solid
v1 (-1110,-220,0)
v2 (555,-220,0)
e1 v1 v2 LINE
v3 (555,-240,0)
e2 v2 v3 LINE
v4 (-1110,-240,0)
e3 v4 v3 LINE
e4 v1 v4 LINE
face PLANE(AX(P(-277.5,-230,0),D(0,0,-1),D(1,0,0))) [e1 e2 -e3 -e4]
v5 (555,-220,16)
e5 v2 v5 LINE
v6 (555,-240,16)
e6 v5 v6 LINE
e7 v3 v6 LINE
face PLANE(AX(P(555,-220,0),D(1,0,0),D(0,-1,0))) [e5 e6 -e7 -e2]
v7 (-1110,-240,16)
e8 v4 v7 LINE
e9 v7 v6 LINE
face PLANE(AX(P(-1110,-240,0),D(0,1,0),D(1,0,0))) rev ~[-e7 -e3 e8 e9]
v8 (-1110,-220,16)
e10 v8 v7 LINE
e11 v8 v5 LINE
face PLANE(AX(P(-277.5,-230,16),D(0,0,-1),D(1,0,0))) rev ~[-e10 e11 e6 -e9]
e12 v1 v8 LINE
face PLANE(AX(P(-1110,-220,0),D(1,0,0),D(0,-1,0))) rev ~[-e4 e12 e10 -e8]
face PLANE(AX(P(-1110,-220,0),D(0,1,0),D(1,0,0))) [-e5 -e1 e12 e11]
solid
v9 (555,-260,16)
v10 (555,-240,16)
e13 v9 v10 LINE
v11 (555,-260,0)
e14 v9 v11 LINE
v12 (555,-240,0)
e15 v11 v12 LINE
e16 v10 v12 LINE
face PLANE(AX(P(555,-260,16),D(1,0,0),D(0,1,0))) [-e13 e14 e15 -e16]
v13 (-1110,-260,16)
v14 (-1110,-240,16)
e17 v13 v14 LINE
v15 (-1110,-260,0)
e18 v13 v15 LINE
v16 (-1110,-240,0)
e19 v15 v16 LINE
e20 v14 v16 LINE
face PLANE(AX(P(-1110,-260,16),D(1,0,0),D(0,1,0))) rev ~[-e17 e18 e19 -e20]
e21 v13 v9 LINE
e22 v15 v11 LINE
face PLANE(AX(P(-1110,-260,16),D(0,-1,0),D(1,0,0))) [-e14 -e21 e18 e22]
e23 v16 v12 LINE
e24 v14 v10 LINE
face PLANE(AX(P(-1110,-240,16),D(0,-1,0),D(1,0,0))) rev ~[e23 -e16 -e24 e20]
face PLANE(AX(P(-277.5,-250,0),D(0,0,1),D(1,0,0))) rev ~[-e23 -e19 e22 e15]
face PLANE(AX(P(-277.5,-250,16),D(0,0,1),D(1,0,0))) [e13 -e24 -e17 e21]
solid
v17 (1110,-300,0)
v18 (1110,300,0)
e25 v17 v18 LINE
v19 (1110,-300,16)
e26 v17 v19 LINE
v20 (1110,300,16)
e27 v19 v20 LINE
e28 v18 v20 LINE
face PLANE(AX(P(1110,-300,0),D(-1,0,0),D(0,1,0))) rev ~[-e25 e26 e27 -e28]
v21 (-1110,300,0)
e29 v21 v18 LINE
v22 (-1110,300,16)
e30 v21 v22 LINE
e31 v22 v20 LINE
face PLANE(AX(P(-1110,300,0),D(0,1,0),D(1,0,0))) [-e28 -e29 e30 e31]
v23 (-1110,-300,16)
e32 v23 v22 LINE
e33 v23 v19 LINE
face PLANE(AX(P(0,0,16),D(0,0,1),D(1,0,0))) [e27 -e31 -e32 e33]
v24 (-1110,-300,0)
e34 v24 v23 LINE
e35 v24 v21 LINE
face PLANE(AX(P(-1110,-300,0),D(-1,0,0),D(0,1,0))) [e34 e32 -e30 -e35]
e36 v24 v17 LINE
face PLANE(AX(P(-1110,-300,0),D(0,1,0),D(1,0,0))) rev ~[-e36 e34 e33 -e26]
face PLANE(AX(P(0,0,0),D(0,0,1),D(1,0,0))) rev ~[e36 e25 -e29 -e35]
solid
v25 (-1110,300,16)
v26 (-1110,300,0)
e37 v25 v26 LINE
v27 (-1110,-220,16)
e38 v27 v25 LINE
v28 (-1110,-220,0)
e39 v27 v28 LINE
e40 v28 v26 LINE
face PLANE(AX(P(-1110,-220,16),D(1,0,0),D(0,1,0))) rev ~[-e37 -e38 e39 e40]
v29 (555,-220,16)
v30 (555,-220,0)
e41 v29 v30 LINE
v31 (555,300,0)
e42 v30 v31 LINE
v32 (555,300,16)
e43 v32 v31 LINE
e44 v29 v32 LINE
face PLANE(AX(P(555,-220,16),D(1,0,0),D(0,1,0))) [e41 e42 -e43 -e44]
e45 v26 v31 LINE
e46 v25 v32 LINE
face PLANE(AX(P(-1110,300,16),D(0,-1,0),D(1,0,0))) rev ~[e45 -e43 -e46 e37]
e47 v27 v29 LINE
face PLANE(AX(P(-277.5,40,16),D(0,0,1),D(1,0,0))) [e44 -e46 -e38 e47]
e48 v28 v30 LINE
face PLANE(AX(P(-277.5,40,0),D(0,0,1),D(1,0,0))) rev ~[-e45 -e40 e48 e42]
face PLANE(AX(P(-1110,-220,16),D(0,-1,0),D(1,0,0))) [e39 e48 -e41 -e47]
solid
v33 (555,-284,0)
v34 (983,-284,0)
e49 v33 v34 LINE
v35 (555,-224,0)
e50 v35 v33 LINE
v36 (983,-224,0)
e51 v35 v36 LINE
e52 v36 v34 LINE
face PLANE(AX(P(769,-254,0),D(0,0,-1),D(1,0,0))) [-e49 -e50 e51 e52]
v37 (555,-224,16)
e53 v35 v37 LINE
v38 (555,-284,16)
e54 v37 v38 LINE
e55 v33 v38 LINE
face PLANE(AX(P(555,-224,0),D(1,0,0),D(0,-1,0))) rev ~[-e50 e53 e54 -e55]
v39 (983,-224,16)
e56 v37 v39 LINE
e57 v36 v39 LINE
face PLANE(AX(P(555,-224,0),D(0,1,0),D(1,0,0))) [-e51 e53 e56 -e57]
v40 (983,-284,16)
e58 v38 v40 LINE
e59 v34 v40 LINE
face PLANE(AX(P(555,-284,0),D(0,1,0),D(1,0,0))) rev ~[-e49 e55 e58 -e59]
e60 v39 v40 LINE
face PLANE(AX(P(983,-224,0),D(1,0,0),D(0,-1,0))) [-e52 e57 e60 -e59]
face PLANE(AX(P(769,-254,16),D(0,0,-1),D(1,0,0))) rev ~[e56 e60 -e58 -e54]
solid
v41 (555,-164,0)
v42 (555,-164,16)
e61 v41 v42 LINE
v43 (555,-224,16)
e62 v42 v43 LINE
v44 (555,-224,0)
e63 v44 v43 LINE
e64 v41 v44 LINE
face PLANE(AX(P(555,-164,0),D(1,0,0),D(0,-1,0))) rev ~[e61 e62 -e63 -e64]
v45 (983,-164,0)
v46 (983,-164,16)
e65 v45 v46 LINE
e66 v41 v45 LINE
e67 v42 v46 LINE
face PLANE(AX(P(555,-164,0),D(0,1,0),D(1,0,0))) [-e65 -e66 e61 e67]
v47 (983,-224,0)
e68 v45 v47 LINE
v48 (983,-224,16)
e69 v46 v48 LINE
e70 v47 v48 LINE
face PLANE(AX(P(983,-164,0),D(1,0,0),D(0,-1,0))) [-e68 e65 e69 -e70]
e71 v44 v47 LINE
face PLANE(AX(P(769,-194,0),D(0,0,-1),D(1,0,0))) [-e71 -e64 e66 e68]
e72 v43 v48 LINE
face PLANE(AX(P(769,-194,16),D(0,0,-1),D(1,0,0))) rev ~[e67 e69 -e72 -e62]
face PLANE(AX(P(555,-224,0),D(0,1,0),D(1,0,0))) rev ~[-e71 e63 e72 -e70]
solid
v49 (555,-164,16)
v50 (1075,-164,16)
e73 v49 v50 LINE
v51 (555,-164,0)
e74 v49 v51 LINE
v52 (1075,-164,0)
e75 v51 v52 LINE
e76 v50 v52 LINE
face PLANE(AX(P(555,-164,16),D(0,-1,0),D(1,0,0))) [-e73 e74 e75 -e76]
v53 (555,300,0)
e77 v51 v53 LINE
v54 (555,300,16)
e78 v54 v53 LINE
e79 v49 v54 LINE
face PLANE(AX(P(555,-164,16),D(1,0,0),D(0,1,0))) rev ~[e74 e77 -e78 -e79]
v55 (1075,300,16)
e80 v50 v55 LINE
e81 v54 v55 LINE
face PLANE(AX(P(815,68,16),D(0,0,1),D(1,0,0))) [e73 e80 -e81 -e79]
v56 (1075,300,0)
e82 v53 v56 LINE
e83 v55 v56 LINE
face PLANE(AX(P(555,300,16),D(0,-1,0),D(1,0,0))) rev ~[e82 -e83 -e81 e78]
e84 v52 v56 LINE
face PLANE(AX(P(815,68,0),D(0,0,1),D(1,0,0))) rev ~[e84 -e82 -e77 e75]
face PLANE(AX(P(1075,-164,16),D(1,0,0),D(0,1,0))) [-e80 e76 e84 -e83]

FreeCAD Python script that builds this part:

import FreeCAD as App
import Part
import Sketcher

V = App.Vector

doc = App.newDocument("Part")
body = doc.addObject("PartDesign::Body", "Body")

# Sketch on XY plane
sketch1 = body.newObject("Sketcher::SketchObject", "Sketch")
sketch1.AttachmentSupport = (doc.getObject("XY_Plane"), [""])
sketch1.MapMode = "FlatFace"
sketch1.addGeometry([
    Part.LineSegment(V(-1110, 300, 0), V(-1110, -300, 0)),
    Part.LineSegment(V(-1110, -300, 0), V(1110, -300, 0)),
    Part.LineSegment(V(1110, -300, 0), V(1110, 300, 0)),
    Part.LineSegment(V(1110, 300, 0), V(-1110, 300, 0)),
], False)
sketch1.addConstraint([
    Sketcher.Constraint("Coincident", 0, 2, 1, 1),
    Sketcher.Constraint("Coincident", 1, 2, 2, 1),
    Sketcher.Constraint("Coincident", 2, 2, 3, 1),
    Sketcher.Constraint("Coincident", 3, 2, 0, 1),
    Sketcher.Constraint("Vertical", 0),
    Sketcher.Constraint("Horizontal", 1),
    Sketcher.Constraint("Vertical", 2),
    Sketcher.Constraint("Horizontal", 3),
    Sketcher.Constraint("Symmetric", 0, 2, 2, 2, -1, 1),
    Sketcher.Constraint("DistanceX", 1, 1, 1, 2, 2220.0),
    Sketcher.Constraint("DistanceY", 0, 2, 0, 1, 600.0),
])
pad1 = body.newObject("PartDesign::Pad", "Pad")
pad1.Profile = sketch1
pad1.Length = 16
body2 = doc.addObject("PartDesign::Body", "Body001")

# Sketch on XY plane
sketch2 = body2.newObject("Sketcher::SketchObject", "Sketch001")
sketch2.AttachmentSupport = (doc.getObject("XY_Plane001"), [""])
sketch2.MapMode = "FlatFace"
sketch2.AttachmentOffset = App.Placement(V(0, 0, 16), App.Rotation())
sketch2.addGeometry([
    Part.LineSegment(V(-1110, 300, 0), V(-1110, -220, 0)),
    Part.LineSegment(V(-1110, -220, 0), V(555, -220, 0)),
    Part.LineSegment(V(555, -220, 0), V(555, 300, 0)),
    Part.LineSegment(V(555, 300, 0), V(-1110, 300, 0)),
], False)
sketch2.addConstraint([
    Sketcher.Constraint("Coincident", 0, 2, 1, 1),
    Sketcher.Constraint("Coincident", 1, 2, 2, 1),
    Sketcher.Constraint("Coincident", 2, 2, 3, 1),
    Sketcher.Constraint("Coincident", 3, 2, 0, 1),
    Sketcher.Constraint("Vertical", 0),
    Sketcher.Constraint("Horizontal", 1),
    Sketcher.Constraint("Vertical", 2),
    Sketcher.Constraint("Horizontal", 3),
    Sketcher.Constraint("DistanceX", 1, 1, 1, 2, 1665.0),
    Sketcher.Constraint("DistanceY", 0, 2, 0, 1, 520.0),
    Sketcher.Constraint("DistanceX", 0, 2, -1, 1, 1110.0),
    Sketcher.Constraint("DistanceY", 0, 2, -1, 1, 220.0),
])
pad2 = body2.newObject("PartDesign::Pad", "Pad001")
pad2.Profile = sketch2
pad2.Length = 16
pad2.Reversed = True
body3 = doc.addObject("PartDesign::Body", "Body002")

# Sketch on XY plane
sketch3 = body3.newObject("Sketcher::SketchObject", "Sketch002")
sketch3.AttachmentSupport = (doc.getObject("XY_Plane002"), [""])
sketch3.MapMode = "FlatFace"
sketch3.addGeometry([
    Part.LineSegment(V(-1110, -240, 0), V(-1110, -220, 0)),
    Part.LineSegment(V(-1110, -220, 0), V(555, -220, 0)),
    Part.LineSegment(V(555, -220, 0), V(555, -240, 0)),
    Part.LineSegment(V(555, -240, 0), V(-1110, -240, 0)),
], False)
sketch3.addConstraint([
    Sketcher.Constraint("Coincident", 0, 2, 1, 1),
    Sketcher.Constraint("Coincident", 1, 2, 2, 1),
    Sketcher.Constraint("Coincident", 2, 2, 3, 1),
    Sketcher.Constraint("Coincident", 3, 2, 0, 1),
    Sketcher.Constraint("Vertical", 0),
    Sketcher.Constraint("Horizontal", 1),
    Sketcher.Constraint("Vertical", 2),
    Sketcher.Constraint("Horizontal", 3),
    Sketcher.Constraint("DistanceX", 1, 1, 1, 2, 1665.0),
    Sketcher.Constraint("DistanceY", 0, 1, 0, 2, 20.0),
    Sketcher.Constraint("DistanceX", 0, 2, -1, 1, 1110.0),
    Sketcher.Constraint("DistanceY", 0, 2, -1, 1, 220.0),
])
pad3 = body3.newObject("PartDesign::Pad", "Pad002")
pad3.Profile = sketch3
pad3.Length = 16
body4 = doc.addObject("PartDesign::Body", "Body003")

# Sketch on XY plane
sketch4 = body4.newObject("Sketcher::SketchObject", "Sketch003")
sketch4.AttachmentSupport = (doc.getObject("XY_Plane003"), [""])
sketch4.MapMode = "FlatFace"
sketch4.AttachmentOffset = App.Placement(V(0, 0, 16), App.Rotation())
sketch4.addGeometry([
    Part.LineSegment(V(-1110, -240, 0), V(-1110, -260, 0)),
    Part.LineSegment(V(-1110, -260, 0), V(555, -260, 0)),
    Part.LineSegment(V(555, -260, 0), V(555, -240, 0)),
    Part.LineSegment(V(555, -240, 0), V(-1110, -240, 0)),
], False)
sketch4.addConstraint([
    Sketcher.Constraint("Coincident", 0, 2, 1, 1),
    Sketcher.Constraint("Coincident", 1, 2, 2, 1),
    Sketcher.Constraint("Coincident", 2, 2, 3, 1),
    Sketcher.Constraint("Coincident", 3, 2, 0, 1),
    Sketcher.Constraint("Vertical", 0),
    Sketcher.Constraint("Horizontal", 1),
    Sketcher.Constraint("Vertical", 2),
    Sketcher.Constraint("Horizontal", 3),
    Sketcher.Constraint("DistanceX", 1, 1, 1, 2, 1665.0),
    Sketcher.Constraint("DistanceY", 0, 2, 0, 1, 20.0),
    Sketcher.Constraint("DistanceX", 0, 2, -1, 1, 1110.0),
    Sketcher.Constraint("DistanceY", 0, 2, -1, 1, 260.0),
])
pad4 = body4.newObject("PartDesign::Pad", "Pad003")
pad4.Profile = sketch4
pad4.Length = 16
pad4.Reversed = True
body5 = doc.addObject("PartDesign::Body", "Body004")

# Sketch on XY plane
sketch5 = body5.newObject("Sketcher::SketchObject", "Sketch004")
sketch5.AttachmentSupport = (doc.getObject("XY_Plane004"), [""])
sketch5.MapMode = "FlatFace"
sketch5.AttachmentOffset = App.Placement(V(0, 0, 16), App.Rotation())
sketch5.addGeometry([
    Part.LineSegment(V(555, 300, 0), V(555, -164, 0)),
    Part.LineSegment(V(555, -164, 0), V(1075, -164, 0)),
    Part.LineSegment(V(1075, -164, 0), V(1075, 300, 0)),
    Part.LineSegment(V(1075, 300, 0), V(555, 300, 0)),
], False)
sketch5.addConstraint([
    Sketcher.Constraint("Coincident", 0, 2, 1, 1),
    Sketcher.Constraint("Coincident", 1, 2, 2, 1),
    Sketcher.Constraint("Coincident", 2, 2, 3, 1),
    Sketcher.Constraint("Coincident", 3, 2, 0, 1),
    Sketcher.Constraint("Vertical", 0),
    Sketcher.Constraint("Horizontal", 1),
    Sketcher.Constraint("Vertical", 2),
    Sketcher.Constraint("Horizontal", 3),
    Sketcher.Constraint("DistanceX", 1, 1, 1, 2, 520.0),
    Sketcher.Constraint("DistanceY", 0, 2, 0, 1, 464.0),
    Sketcher.Constraint("DistanceX", -1, 1, 0, 2, 555.0),
    Sketcher.Constraint("DistanceY", 0, 2, -1, 1, 164.0),
])
pad5 = body5.newObject("PartDesign::Pad", "Pad004")
pad5.Profile = sketch5
pad5.Length = 16
pad5.Reversed = True
body6 = doc.addObject("PartDesign::Body", "Body005")

# Sketch on XY plane
sketch6 = body6.newObject("Sketcher::SketchObject", "Sketch005")
sketch6.AttachmentSupport = (doc.getObject("XY_Plane005"), [""])
sketch6.MapMode = "FlatFace"
sketch6.addGeometry([
    Part.LineSegment(V(555, -224, 0), V(555, -164, 0)),
    Part.LineSegment(V(555, -164, 0), V(983, -164, 0)),
    Part.LineSegment(V(983, -164, 0), V(983, -224, 0)),
    Part.LineSegment(V(983, -224, 0), V(555, -224, 0)),
], False)
sketch6.addConstraint([
    Sketcher.Constraint("Coincident", 0, 2, 1, 1),
    Sketcher.Constraint("Coincident", 1, 2, 2, 1),
    Sketcher.Constraint("Coincident", 2, 2, 3, 1),
    Sketcher.Constraint("Coincident", 3, 2, 0, 1),
    Sketcher.Constraint("Vertical", 0),
    Sketcher.Constraint("Horizontal", 1),
    Sketcher.Constraint("Vertical", 2),
    Sketcher.Constraint("Horizontal", 3),
    Sketcher.Constraint("DistanceX", 1, 1, 1, 2, 428.0),
    Sketcher.Constraint("DistanceY", 0, 1, 0, 2, 60.0),
    Sketcher.Constraint("DistanceX", -1, 1, 0, 2, 555.0),
    Sketcher.Constraint("DistanceY", 0, 2, -1, 1, 164.0),
])
pad6 = body6.newObject("PartDesign::Pad", "Pad005")
pad6.Profile = sketch6
pad6.Length = 16
body7 = doc.addObject("PartDesign::Body", "Body006")

# Sketch on XY plane
sketch7 = body7.newObject("Sketcher::SketchObject", "Sketch006")
sketch7.AttachmentSupport = (doc.getObject("XY_Plane006"), [""])
sketch7.MapMode = "FlatFace"
sketch7.addGeometry([
    Part.LineSegment(V(555, -284, 0), V(555, -224, 0)),
    Part.LineSegment(V(555, -224, 0), V(983, -224, 0)),
    Part.LineSegment(V(983, -224, 0), V(983, -284, 0)),
    Part.LineSegment(V(983, -284, 0), V(555, -284, 0)),
], False)
sketch7.addConstraint([
    Sketcher.Constraint("Coincident", 0, 2, 1, 1),
    Sketcher.Constraint("Coincident", 1, 2, 2, 1),
    Sketcher.Constraint("Coincident", 2, 2, 3, 1),
    Sketcher.Constraint("Coincident", 3, 2, 0, 1),
    Sketcher.Constraint("Vertical", 0),
    Sketcher.Constraint("Horizontal", 1),
    Sketcher.Constraint("Vertical", 2),
    Sketcher.Constraint("Horizontal", 3),
    Sketcher.Constraint("DistanceX", 1, 1, 1, 2, 428.0),
    Sketcher.Constraint("DistanceY", 0, 1, 0, 2, 60.0),
    Sketcher.Constraint("DistanceX", -1, 1, 0, 2, 555.0),
    Sketcher.Constraint("DistanceY", 0, 2, -1, 1, 224.0),
])
pad7 = body7.newObject("PartDesign::Pad", "Pad006")
pad7.Profile = sketch7
pad7.Length = 16

doc.recompute()
